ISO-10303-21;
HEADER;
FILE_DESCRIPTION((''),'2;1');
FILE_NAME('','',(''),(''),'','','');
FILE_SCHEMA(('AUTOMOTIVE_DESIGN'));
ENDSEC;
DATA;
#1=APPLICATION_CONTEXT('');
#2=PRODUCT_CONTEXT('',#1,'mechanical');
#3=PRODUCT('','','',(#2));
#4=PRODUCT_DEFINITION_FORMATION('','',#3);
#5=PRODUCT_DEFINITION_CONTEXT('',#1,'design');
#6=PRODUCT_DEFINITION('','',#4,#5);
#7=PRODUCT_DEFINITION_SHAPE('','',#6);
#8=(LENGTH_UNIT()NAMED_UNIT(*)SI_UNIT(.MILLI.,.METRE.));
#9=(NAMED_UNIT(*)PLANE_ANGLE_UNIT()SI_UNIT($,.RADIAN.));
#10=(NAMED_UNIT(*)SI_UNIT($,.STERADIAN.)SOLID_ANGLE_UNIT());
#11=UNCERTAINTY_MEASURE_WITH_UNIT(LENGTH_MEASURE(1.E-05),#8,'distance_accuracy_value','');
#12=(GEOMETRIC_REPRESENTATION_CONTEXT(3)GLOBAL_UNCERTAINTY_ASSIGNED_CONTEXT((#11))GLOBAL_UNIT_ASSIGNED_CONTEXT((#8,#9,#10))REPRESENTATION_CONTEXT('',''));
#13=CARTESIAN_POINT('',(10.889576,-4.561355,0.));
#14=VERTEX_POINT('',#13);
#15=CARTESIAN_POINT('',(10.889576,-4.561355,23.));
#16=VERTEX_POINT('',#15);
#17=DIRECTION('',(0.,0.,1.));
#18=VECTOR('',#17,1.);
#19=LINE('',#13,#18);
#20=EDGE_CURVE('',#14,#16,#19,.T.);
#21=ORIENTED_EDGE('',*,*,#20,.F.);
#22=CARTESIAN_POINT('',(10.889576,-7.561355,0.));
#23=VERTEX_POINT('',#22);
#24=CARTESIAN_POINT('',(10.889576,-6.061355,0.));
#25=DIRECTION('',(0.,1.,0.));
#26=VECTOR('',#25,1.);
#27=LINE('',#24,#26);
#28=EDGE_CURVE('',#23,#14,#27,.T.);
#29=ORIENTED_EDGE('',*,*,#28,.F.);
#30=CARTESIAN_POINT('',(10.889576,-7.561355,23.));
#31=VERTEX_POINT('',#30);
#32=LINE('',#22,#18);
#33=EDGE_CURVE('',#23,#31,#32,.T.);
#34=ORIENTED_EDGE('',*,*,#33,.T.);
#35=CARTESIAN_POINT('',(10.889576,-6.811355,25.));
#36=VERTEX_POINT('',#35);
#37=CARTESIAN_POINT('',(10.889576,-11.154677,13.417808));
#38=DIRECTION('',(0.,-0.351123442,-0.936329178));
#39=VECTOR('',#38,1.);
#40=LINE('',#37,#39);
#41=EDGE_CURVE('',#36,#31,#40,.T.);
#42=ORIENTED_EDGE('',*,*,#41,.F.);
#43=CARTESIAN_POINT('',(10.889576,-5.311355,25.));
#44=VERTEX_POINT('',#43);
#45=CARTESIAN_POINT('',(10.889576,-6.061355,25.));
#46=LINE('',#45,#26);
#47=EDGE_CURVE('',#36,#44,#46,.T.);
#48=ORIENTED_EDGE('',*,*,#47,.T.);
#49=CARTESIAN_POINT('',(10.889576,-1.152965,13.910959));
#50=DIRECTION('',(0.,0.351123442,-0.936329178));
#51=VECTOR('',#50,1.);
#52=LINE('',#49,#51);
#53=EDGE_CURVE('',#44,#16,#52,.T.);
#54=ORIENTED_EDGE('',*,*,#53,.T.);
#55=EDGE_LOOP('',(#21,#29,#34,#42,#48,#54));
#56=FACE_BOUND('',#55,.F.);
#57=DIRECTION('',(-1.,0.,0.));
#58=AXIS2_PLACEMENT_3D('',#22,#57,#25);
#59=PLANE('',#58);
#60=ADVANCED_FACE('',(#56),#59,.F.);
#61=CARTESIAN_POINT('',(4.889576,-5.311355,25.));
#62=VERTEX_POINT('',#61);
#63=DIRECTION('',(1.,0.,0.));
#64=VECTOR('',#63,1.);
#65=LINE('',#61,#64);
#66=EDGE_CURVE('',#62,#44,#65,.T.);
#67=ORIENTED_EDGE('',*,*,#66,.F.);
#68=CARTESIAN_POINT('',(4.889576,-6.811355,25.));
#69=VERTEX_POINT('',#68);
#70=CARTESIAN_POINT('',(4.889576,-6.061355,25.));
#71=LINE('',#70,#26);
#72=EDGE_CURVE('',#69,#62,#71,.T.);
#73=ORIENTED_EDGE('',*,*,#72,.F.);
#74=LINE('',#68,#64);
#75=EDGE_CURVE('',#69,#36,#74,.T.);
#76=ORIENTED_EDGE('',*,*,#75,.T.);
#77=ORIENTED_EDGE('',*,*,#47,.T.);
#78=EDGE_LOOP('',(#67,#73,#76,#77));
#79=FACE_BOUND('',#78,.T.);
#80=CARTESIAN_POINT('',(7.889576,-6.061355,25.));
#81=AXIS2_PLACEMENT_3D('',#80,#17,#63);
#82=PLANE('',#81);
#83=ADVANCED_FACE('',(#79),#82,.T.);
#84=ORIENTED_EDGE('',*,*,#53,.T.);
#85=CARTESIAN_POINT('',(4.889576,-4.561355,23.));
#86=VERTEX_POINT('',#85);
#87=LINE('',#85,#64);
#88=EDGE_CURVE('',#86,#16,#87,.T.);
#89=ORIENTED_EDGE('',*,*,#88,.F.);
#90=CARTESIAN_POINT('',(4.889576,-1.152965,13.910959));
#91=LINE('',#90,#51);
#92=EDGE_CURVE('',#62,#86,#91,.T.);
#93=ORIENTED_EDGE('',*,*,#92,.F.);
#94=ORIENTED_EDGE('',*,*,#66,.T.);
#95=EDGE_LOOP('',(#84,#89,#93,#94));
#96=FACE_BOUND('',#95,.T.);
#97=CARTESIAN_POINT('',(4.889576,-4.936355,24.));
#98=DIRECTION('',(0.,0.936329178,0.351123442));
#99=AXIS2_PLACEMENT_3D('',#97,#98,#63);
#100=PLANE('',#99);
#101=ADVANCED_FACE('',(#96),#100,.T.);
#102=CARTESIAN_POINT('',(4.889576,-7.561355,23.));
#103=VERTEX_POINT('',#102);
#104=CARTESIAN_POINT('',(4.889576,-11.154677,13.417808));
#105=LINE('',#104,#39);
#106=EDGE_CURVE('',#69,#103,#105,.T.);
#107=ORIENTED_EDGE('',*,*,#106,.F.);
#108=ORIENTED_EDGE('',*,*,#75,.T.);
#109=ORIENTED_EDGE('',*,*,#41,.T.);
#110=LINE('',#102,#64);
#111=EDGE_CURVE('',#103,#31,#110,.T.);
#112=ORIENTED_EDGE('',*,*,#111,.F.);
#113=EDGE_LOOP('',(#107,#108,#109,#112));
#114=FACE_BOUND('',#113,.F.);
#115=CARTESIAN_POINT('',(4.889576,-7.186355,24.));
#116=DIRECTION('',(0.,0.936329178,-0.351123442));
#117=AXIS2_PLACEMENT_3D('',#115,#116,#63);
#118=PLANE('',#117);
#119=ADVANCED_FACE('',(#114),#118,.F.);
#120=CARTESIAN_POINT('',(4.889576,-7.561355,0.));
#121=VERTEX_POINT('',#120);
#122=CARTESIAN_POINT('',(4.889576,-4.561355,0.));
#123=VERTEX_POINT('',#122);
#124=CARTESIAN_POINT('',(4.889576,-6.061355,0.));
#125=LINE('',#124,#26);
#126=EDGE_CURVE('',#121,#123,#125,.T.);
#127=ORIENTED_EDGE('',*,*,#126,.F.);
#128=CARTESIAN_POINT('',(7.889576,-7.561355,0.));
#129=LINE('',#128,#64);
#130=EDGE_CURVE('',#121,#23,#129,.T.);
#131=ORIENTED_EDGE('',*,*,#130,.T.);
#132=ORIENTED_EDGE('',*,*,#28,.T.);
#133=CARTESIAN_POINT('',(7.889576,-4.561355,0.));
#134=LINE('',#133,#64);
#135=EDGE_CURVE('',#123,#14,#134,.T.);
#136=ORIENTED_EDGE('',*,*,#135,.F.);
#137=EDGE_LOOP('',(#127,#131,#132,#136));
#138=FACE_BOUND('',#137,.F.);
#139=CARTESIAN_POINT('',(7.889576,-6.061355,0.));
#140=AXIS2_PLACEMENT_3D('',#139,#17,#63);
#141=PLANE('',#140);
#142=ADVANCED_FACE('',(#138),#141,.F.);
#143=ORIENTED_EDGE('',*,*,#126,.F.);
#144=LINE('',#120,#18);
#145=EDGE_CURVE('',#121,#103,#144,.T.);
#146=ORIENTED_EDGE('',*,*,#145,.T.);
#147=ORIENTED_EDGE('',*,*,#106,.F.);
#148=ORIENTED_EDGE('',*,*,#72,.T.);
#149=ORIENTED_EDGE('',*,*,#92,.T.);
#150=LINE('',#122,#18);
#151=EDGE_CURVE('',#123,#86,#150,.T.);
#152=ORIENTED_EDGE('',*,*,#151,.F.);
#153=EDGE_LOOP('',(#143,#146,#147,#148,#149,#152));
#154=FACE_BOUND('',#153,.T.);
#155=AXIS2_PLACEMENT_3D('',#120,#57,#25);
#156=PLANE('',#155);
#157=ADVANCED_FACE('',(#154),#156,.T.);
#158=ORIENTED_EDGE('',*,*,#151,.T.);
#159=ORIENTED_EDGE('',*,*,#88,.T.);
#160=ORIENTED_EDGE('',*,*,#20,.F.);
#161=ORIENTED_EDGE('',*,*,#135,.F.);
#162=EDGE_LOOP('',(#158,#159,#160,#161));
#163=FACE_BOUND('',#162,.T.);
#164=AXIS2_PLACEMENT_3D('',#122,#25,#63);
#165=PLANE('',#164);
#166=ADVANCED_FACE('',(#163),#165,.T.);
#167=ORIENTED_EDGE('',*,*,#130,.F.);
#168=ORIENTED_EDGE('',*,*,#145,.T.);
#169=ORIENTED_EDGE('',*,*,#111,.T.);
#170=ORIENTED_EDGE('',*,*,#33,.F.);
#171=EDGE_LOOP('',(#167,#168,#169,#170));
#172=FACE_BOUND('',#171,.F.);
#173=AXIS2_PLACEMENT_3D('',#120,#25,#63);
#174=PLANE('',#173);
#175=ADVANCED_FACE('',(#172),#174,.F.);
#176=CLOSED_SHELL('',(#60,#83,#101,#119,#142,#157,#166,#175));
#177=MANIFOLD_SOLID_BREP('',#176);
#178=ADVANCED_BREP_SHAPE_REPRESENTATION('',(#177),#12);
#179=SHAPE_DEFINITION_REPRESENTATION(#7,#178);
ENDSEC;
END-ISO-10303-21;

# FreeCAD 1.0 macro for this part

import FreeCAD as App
import Part
import Sketcher


def edges_at(feature, points):
    """Names of the edges that pass closest to the given points."""
    edges = feature.Shape.Edges
    near = lambda p: min(range(len(edges)), key=lambda i: edges[i].distToShape(Part.Vertex(*p))[0])
    return sorted({f"Edge{near(p) + 1}" for p in points})

doc = App.newDocument("Part")
body = doc.addObject("PartDesign::Body", "Body")

sketch1 = doc.addObject("Sketcher::SketchObject", "Sketch")
body.addObject(sketch1)
sketch1.AttachmentSupport = (doc.XY_Plane, [""])
sketch1.MapMode = "FlatFace"
sketch1.addGeometry([
    Part.LineSegment(App.Vector(4.9, -4.6, 0), App.Vector(4.9, -7.6, 0)),
    Part.LineSegment(App.Vector(4.9, -7.6, 0), App.Vector(10.9, -7.6, 0)),
    Part.LineSegment(App.Vector(10.9, -7.6, 0), App.Vector(10.9, -4.6, 0)),
    Part.LineSegment(App.Vector(10.9, -4.6, 0), App.Vector(4.9, -4.6, 0)),
], False)
sketch1.addConstraint([
    Sketcher.Constraint("Coincident", 0, 2, 1, 1),
    Sketcher.Constraint("Coincident", 1, 2, 2, 1),
    Sketcher.Constraint("Coincident", 2, 2, 3, 1),
    Sketcher.Constraint("Coincident", 3, 2, 0, 1),
    Sketcher.Constraint("Vertical", 0),
    Sketcher.Constraint("Horizontal", 1),
    Sketcher.Constraint("Vertical", 2),
    Sketcher.Constraint("Horizontal", 3),
    Sketcher.Constraint("DistanceX", 1, 1, 1, 2, 6.0),
    Sketcher.Constraint("DistanceY", 0, 2, 0, 1, 3.0),
    Sketcher.Constraint("DistanceX", -1, 1, 0, 2, 4.889576),
    Sketcher.Constraint("DistanceY", 0, 2, -1, 1, 7.561355),
])
pad1 = doc.addObject("PartDesign::Pad", "Pad")
body.addObject(pad1)
pad1.Profile = sketch1
pad1.Length = 25
doc.recompute()

chamfer = doc.addObject("PartDesign::Chamfer", "Chamfer")
body.addObject(chamfer)
chamfer.Base = (pad1, edges_at(pad1, [(7.89, -7.561, 25), (7.89, -4.561, 25)]))
chamfer.ChamferType = "Two distances"
chamfer.Size = 0.75
chamfer.Size2 = 2
chamfer.FlipDirection = True

doc.recompute()
